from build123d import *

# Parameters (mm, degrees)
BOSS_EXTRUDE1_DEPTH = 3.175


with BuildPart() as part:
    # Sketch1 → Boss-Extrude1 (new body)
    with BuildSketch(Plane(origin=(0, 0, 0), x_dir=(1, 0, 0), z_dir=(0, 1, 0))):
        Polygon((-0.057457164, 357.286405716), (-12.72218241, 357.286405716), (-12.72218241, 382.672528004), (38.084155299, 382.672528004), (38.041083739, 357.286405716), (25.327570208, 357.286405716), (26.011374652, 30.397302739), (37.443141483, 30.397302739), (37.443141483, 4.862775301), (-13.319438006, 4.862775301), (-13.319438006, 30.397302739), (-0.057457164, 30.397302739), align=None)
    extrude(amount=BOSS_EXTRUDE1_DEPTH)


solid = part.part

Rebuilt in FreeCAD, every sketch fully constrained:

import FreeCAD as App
import Part
import Sketcher

V = App.Vector
Q = App.Units.Quantity

doc = App.newDocument("Part")
body = doc.addObject("PartDesign::Body", "Body")

# Sketch on XZ plane
sketch1 = body.newObject("Sketcher::SketchObject", "Sketch")
sketch1.AttachmentSupport = (doc.getObject("XZ_Plane"), [""])
sketch1.MapMode = "FlatFace"
sketch1.addGeometry(Part.LineSegment(V(-13, -357, 0), V(0, -357, 0)), False)
sketch1.addGeometry(Part.LineSegment(V(0, -357, 0), V(0, -30, 0)), False)
sketch1.addGeometry(Part.LineSegment(V(0, -30, 0), V(-13, -30, 0)), False)
sketch1.addGeometry(Part.LineSegment(V(-13, -30, 0), V(-13, -5, 0)), False)
sketch1.addGeometry(Part.LineSegment(V(-13, -5, 0), V(37, -5, 0)), False)
sketch1.addGeometry(Part.LineSegment(V(37, -5, 0), V(37, -30, 0)), False)
sketch1.addGeometry(Part.LineSegment(V(37, -30, 0), V(26, -30, 0)), False)
sketch1.addGeometry(Part.LineSegment(V(26, -30, 0), V(25, -357, 0)), False)
sketch1.addGeometry(Part.LineSegment(V(25, -357, 0), V(38, -357, 0)), False)
sketch1.addGeometry(Part.LineSegment(V(38, -357, 0), V(38, -383, 0)), False)
sketch1.addGeometry(Part.LineSegment(V(38, -383, 0), V(-13, -383, 0)), False)
sketch1.addGeometry(Part.LineSegment(V(-13, -383, 0), V(-13, -357, 0)), False)
sketch1.addConstraint(Sketcher.Constraint("Coincident", 0, 2, 1, 1))
sketch1.addConstraint(Sketcher.Constraint("Coincident", 1, 2, 2, 1))
sketch1.addConstraint(Sketcher.Constraint("Coincident", 2, 2, 3, 1))
sketch1.addConstraint(Sketcher.Constraint("Coincident", 3, 2, 4, 1))
sketch1.addConstraint(Sketcher.Constraint("Coincident", 4, 2, 5, 1))
sketch1.addConstraint(Sketcher.Constraint("Coincident", 5, 2, 6, 1))
sketch1.addConstraint(Sketcher.Constraint("Coincident", 6, 2, 7, 1))
sketch1.addConstraint(Sketcher.Constraint("Coincident", 7, 2, 8, 1))
sketch1.addConstraint(Sketcher.Constraint("Coincident", 8, 2, 9, 1))
sketch1.addConstraint(Sketcher.Constraint("Coincident", 9, 2, 10, 1))
sketch1.addConstraint(Sketcher.Constraint("Coincident", 10, 2, 11, 1))
sketch1.addConstraint(Sketcher.Constraint("Coincident", 11, 2, 0, 1))
sketch1.addConstraint(Sketcher.Constraint("Horizontal", 0))
sketch1.addConstraint(Sketcher.Constraint("Vertical", 1))
sketch1.addConstraint(Sketcher.Constraint("Horizontal", 2))
sketch1.addConstraint(Sketcher.Constraint("Vertical", 3))
sketch1.addConstraint(Sketcher.Constraint("Horizontal", 4))
sketch1.addConstraint(Sketcher.Constraint("Vertical", 5))
sketch1.addConstraint(Sketcher.Constraint("Horizontal", 6))
sketch1.addConstraint(Sketcher.Constraint("Horizontal", 8))
sketch1.addConstraint(Sketcher.Constraint("Horizontal", 10))
sketch1.addConstraint(Sketcher.Constraint("Vertical", 11))
sketch1.addConstraint(Sketcher.Constraint("Horizontal", 2, 2, 5, 2))
sketch1.addConstraint(Sketcher.Constraint("Horizontal", 0, 2, 7, 2))
sketch1.addConstraint(Sketcher.Constraint("DistanceX", 2, 2, 2, 1, 13.261981))
sketch1.addConstraint(Sketcher.Constraint("DistanceX", 4, 1, 4, 2, 50.762579))
sketch1.addConstraint(Sketcher.Constraint("Distance", 7, 326.889818))
sketch1.addConstraint(Sketcher.Constraint("Distance", 9, 25.386159))
sketch1.addConstraint(Sketcher.Constraint("DistanceX", 0, 1, 0, 2, 12.664725))
sketch1.addConstraint(Sketcher.Constraint("DistanceX", 6, 2, 6, 1, 11.431767))
sketch1.addConstraint(Sketcher.Constraint("DistanceX", 8, 1, 8, 2, 12.713514))
sketch1.addConstraint(Sketcher.Constraint("DistanceX", 10, 2, 10, 1, 50.806338))
sketch1.addConstraint(Sketcher.Constraint("DistanceY", 3, 1, 3, 2, 25.534527))
sketch1.addConstraint(Sketcher.Constraint("DistanceX", 2, 2, -1, 1, 13.319438))
sketch1.addConstraint(Sketcher.Constraint("DistanceX", -1, 1, 7, 2, 25.32757))
sketch1.addConstraint(Sketcher.Constraint("DistanceY", 9, 2, -1, 1, 382.672528))
pad1 = body.newObject("PartDesign::Pad", "Pad")
pad1.Profile = sketch1
pad1.Length = Q("0.125 in")
pad1.Reversed = True

doc.recompute()
